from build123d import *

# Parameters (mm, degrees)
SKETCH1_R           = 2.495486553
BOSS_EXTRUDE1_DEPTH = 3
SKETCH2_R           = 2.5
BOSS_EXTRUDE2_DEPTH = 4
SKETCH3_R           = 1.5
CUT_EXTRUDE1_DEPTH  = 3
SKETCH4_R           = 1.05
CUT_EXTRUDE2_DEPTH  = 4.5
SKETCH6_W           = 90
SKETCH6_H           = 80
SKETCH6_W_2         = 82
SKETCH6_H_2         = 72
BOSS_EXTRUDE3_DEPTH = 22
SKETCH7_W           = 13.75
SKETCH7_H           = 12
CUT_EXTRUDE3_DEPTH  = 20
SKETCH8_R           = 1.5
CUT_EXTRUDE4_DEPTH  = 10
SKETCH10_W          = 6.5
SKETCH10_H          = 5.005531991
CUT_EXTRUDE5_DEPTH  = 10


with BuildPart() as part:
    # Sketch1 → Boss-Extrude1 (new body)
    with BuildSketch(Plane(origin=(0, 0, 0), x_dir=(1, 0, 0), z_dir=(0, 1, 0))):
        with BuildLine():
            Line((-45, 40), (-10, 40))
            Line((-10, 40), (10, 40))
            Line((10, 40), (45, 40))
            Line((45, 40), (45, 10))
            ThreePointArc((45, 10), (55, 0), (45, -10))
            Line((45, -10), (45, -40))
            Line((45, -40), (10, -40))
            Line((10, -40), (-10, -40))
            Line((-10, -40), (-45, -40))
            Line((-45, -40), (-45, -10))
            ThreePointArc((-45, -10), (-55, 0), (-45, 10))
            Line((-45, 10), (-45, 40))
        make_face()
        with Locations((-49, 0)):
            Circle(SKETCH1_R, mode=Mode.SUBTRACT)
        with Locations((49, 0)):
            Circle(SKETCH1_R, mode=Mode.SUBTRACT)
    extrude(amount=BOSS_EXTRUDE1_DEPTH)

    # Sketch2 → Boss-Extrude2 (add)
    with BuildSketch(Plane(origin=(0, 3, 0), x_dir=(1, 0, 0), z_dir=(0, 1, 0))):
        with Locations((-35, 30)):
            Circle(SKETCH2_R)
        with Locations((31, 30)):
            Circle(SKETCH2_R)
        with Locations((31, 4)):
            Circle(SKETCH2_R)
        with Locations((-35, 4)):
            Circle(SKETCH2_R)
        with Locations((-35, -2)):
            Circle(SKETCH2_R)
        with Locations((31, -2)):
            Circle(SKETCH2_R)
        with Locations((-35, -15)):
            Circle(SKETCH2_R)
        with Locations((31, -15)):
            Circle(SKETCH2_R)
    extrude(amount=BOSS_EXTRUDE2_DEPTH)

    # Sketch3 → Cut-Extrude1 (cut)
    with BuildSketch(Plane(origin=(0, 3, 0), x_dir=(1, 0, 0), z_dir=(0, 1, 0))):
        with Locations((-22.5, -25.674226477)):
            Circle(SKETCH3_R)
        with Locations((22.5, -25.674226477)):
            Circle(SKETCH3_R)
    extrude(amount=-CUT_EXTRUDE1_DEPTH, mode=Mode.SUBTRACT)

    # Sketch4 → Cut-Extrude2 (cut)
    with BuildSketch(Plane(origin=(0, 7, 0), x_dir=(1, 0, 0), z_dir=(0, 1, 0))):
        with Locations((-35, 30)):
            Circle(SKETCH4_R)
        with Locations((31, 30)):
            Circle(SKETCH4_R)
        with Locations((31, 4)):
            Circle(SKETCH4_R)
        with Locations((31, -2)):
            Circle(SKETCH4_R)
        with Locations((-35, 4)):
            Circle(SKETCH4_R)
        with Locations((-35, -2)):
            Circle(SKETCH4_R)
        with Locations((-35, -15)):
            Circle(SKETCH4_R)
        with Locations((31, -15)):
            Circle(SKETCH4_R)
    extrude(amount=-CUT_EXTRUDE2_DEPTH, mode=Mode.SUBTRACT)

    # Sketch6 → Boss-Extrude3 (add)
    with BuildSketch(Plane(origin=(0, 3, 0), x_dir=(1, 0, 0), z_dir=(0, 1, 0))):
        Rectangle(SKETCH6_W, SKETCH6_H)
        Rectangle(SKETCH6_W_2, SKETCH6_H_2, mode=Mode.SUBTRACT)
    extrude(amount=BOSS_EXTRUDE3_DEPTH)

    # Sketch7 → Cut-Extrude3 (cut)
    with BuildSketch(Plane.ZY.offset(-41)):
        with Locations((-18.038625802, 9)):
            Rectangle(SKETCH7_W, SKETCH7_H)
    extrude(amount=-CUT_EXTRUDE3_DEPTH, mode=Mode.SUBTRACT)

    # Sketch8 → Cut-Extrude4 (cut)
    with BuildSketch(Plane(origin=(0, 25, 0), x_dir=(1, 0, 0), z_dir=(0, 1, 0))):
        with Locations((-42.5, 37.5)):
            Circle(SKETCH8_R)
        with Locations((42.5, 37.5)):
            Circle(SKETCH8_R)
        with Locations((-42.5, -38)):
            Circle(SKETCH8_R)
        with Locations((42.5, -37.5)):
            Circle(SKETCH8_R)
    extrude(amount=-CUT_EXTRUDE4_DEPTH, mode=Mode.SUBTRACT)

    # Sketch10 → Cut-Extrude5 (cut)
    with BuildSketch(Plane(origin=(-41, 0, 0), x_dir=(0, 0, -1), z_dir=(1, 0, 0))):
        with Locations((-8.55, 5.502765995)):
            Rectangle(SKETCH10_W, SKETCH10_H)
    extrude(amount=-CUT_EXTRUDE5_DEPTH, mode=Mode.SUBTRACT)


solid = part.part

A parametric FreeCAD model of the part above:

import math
import FreeCAD as App
import Part
import Sketcher

V = App.Vector
Q = App.Units.Quantity

doc = App.newDocument("Part")
body = doc.addObject("PartDesign::Body", "Body")

sketch1 = doc.addObject("Sketcher::SketchObject", "Sketch")
body.addObject(sketch1)
sketch1.AttachmentSupport = (doc.XZ_Plane, [""])
sketch1.MapMode = "FlatFace"
sketch1.addGeometry([
    Part.LineSegment(V(45, -40, 0), V(-45, -40, 0)),
    Part.LineSegment(V(-45, -40, 0), V(-45, -10, 0)),
    Part.ArcOfCircle(Part.Circle(V(-45, 0, 0), V(0, 0, 1), 10), math.radians(90), math.radians(270)),
    Part.LineSegment(V(-45, 10, 0), V(-45, 40, 0)),
    Part.LineSegment(V(-45, 40, 0), V(45, 40, 0)),
    Part.LineSegment(V(45, 40, 0), V(45, 10, 0)),
    Part.ArcOfCircle(Part.Circle(V(45, 0, 0), V(0, 0, 1), 10), math.radians(-90), math.radians(90)),
    Part.LineSegment(V(45, -10, 0), V(45, -40, 0)),
    Part.Circle(V(49, 0, 0), V(0, 0, 1), 2.5),
    Part.Circle(V(-49, 0, 0), V(0, 0, 1), 2.5),
], False)
sketch1.addConstraint([
    Sketcher.Constraint("Coincident", 0, 2, 1, 1),
    Sketcher.Constraint("Coincident", 1, 2, 2, 2),
    Sketcher.Constraint("Coincident", 2, 1, 3, 1),
    Sketcher.Constraint("Coincident", 3, 2, 4, 1),
    Sketcher.Constraint("Coincident", 4, 2, 5, 1),
    Sketcher.Constraint("Coincident", 5, 2, 6, 2),
    Sketcher.Constraint("Coincident", 6, 1, 7, 1),
    Sketcher.Constraint("Coincident", 7, 2, 0, 1),
    Sketcher.Constraint("Horizontal", 0),
    Sketcher.Constraint("Vertical", 1),
    Sketcher.Constraint("Vertical", 3),
    Sketcher.Constraint("Horizontal", 4),
    Sketcher.Constraint("Vertical", 5),
    Sketcher.Constraint("Vertical", 7),
    Sketcher.Constraint("Equal", 2, 6),
    Sketcher.Constraint("Equal", 8, 9),
    Sketcher.Constraint("Symmetric", 2, 3, 6, 3, -1, 1),
    Sketcher.Constraint("Symmetric", 8, 3, 9, 3, -1, 1),
    Sketcher.Constraint("Symmetric", 0, 2, 4, 2, -1, 1),
    Sketcher.Constraint("Symmetric", 2, 1, 5, 2, -2),
    Sketcher.Constraint("PointOnObject", 8, 3, -1),
    Sketcher.Constraint("Vertical", 2, 3, 0, 2),
    Sketcher.Constraint("Vertical", 5, 2, 6, 1),
    Sketcher.Constraint("Radius", 2, Q("10 mm")),
    Sketcher.Constraint("DistanceX", 0, 2, 0, 1, Q("90 mm")),
    Sketcher.Constraint("DistanceY", 1, 1, 1, 2, Q("30 mm")),
    Sketcher.Constraint("DistanceX", -1, 1, 8, 3, Q("49 mm")),
    Sketcher.Constraint("Diameter", 8, Q("4.990973 mm")),
])
pad1 = doc.addObject("PartDesign::Pad", "Pad")
body.addObject(pad1)
pad1.Profile = sketch1
pad1.Length = 3
pad1.Reversed = True

sketch2 = doc.addObject("Sketcher::SketchObject", "Sketch001")
body.addObject(sketch2)
sketch2.AttachmentSupport = (doc.XZ_Plane, [""])
sketch2.MapMode = "FlatFace"
sketch2.AttachmentOffset = App.Placement(V(0, 0, -3), App.Rotation())
sketch2.addGeometry([
    Part.Circle(V(-35, -30, 0), V(0, 0, 1), 2.5),
    Part.Circle(V(31, -30, 0), V(0, 0, 1), 2.5),
    Part.Circle(V(31, -4, 0), V(0, 0, 1), 2.5),
    Part.Circle(V(-35, -4, 0), V(0, 0, 1), 2.5),
    Part.Circle(V(-35, 2, 0), V(0, 0, 1), 2.5),
    Part.Circle(V(31, 2, 0), V(0, 0, 1), 2.5),
    Part.Circle(V(-35, 15, 0), V(0, 0, 1), 2.5),
    Part.Circle(V(31, 15, 0), V(0, 0, 1), 2.5),
], False)
sketch2.addConstraint([
    Sketcher.Constraint("Equal", 0, 1),
    Sketcher.Constraint("Equal", 1, 2),
    Sketcher.Constraint("Equal", 2, 3),
    Sketcher.Constraint("Equal", 3, 4),
    Sketcher.Constraint("Equal", 4, 5),
    Sketcher.Constraint("Equal", 5, 6),
    Sketcher.Constraint("Equal", 6, 7),
    Sketcher.Constraint("Horizontal", 0, 3, 1, 3),
    Sketcher.Constraint("Horizontal", 2, 3, 3, 3),
    Sketcher.Constraint("Horizontal", 4, 3, 5, 3),
    Sketcher.Constraint("Horizontal", 6, 3, 7, 3),
    Sketcher.Constraint("Vertical", 1, 3, 2, 3),
    Sketcher.Constraint("Vertical", 0, 3, 3, 3),
    Sketcher.Constraint("Vertical", 3, 3, 4, 3),
    Sketcher.Constraint("Vertical", 2, 3, 5, 3),
    Sketcher.Constraint("Vertical", 4, 3, 6, 3),
    Sketcher.Constraint("Vertical", 5, 3, 7, 3),
    Sketcher.Constraint("Diameter", 0, Q("5 mm")),
    Sketcher.Constraint("DistanceX", 0, 3, -1, 1, Q("35 mm")),
    Sketcher.Constraint("DistanceY", 0, 3, -1, 1, Q("30 mm")),
    Sketcher.Constraint("DistanceX", -1, 1, 1, 3, Q("31 mm")),
    Sketcher.Constraint("DistanceY", 2, 3, -1, 1, Q("4 mm")),
    Sketcher.Constraint("DistanceY", -1, 1, 4, 3, Q("2 mm")),
    Sketcher.Constraint("DistanceY", -1, 1, 6, 3, Q("15 mm")),
])
pad2 = doc.addObject("PartDesign::Pad", "Pad001")
body.addObject(pad2)
pad2.Profile = sketch2
pad2.Length = 4
pad2.Reversed = True

sketch3 = doc.addObject("Sketcher::SketchObject", "Sketch002")
body.addObject(sketch3)
sketch3.AttachmentSupport = (doc.XZ_Plane, [""])
sketch3.MapMode = "FlatFace"
sketch3.AttachmentOffset = App.Placement(V(0, 0, -3), App.Rotation())
sketch3.addGeometry([
    Part.Circle(V(-22.5, 25.7, 0), V(0, 0, 1), 1.5),
    Part.Circle(V(22.5, 25.7, 0), V(0, 0, 1), 1.5),
], False)
sketch3.addConstraint([
    Sketcher.Constraint("Equal", 0, 1),
    Sketcher.Constraint("Symmetric", 0, 3, 1, 3, -2),
    Sketcher.Constraint("Diameter", 0, Q("3 mm")),
    Sketcher.Constraint("DistanceX", 0, 3, 1, 3, Q("45 mm")),
    Sketcher.Constraint("DistanceY", -1, 1, 0, 3, Q("25.674226 mm")),
])
pocket1 = doc.addObject("PartDesign::Pocket", "Pocket")
body.addObject(pocket1)
pocket1.Profile = sketch3
pocket1.Length = 3
pocket1.Reversed = True

sketch4 = doc.addObject("Sketcher::SketchObject", "Sketch003")
body.addObject(sketch4)
sketch4.AttachmentSupport = (doc.XZ_Plane, [""])
sketch4.MapMode = "FlatFace"
sketch4.AttachmentOffset = App.Placement(V(0, 0, -7), App.Rotation())
sketch4.addGeometry([
    Part.Circle(V(-35, -30, 0), V(0, 0, 1), 1.1),
    Part.Circle(V(31, -30, 0), V(0, 0, 1), 1.1),
    Part.Circle(V(31, -4, 0), V(0, 0, 1), 1.1),
    Part.Circle(V(31, 2, 0), V(0, 0, 1), 1.1),
    Part.Circle(V(-35, -4, 0), V(0, 0, 1), 1.1),
    Part.Circle(V(-35, 2, 0), V(0, 0, 1), 1.1),
    Part.Circle(V(-35, 15, 0), V(0, 0, 1), 1.1),
    Part.Circle(V(31, 15, 0), V(0, 0, 1), 1.1),
], False)
sketch4.addConstraint([
    Sketcher.Constraint("Equal", 0, 1),
    Sketcher.Constraint("Equal", 1, 2),
    Sketcher.Constraint("Equal", 2, 3),
    Sketcher.Constraint("Equal", 3, 4),
    Sketcher.Constraint("Equal", 4, 5),
    Sketcher.Constraint("Equal", 5, 6),
    Sketcher.Constraint("Equal", 6, 7),
    Sketcher.Constraint("Horizontal", 0, 3, 1, 3),
    Sketcher.Constraint("Horizontal", 2, 3, 4, 3),
    Sketcher.Constraint("Horizontal", 3, 3, 5, 3),
    Sketcher.Constraint("Horizontal", 6, 3, 7, 3),
    Sketcher.Constraint("Vertical", 1, 3, 2, 3),
    Sketcher.Constraint("Vertical", 2, 3, 3, 3),
    Sketcher.Constraint("Vertical", 0, 3, 4, 3),
    Sketcher.Constraint("Vertical", 4, 3, 5, 3),
    Sketcher.Constraint("Vertical", 5, 3, 6, 3),
    Sketcher.Constraint("Vertical", 3, 3, 7, 3),
    Sketcher.Constraint("Diameter", 0, Q("2.1 mm")),
    Sketcher.Constraint("DistanceX", 0, 3, -1, 1, Q("35 mm")),
    Sketcher.Constraint("DistanceY", 0, 3, -1, 1, Q("30 mm")),
    Sketcher.Constraint("DistanceX", -1, 1, 1, 3, Q("31 mm")),
    Sketcher.Constraint("DistanceY", 2, 3, -1, 1, Q("4 mm")),
    Sketcher.Constraint("DistanceY", -1, 1, 3, 3, Q("2 mm")),
    Sketcher.Constraint("DistanceY", -1, 1, 6, 3, Q("15 mm")),
])
pocket2 = doc.addObject("PartDesign::Pocket", "Pocket001")
body.addObject(pocket2)
pocket2.Profile = sketch4
pocket2.Length = 4.5
pocket2.Reversed = True

sketch5 = doc.addObject("Sketcher::SketchObject", "Sketch004")
body.addObject(sketch5)
sketch5.AttachmentSupport = (doc.XZ_Plane, [""])
sketch5.MapMode = "FlatFace"
sketch5.AttachmentOffset = App.Placement(V(0, 0, -3), App.Rotation())
sketch5.addGeometry([
    Part.LineSegment(V(-45, -40, 0), V(-45, 40, 0)),
    Part.LineSegment(V(-45, 40, 0), V(45, 40, 0)),
    Part.LineSegment(V(45, 40, 0), V(45, -40, 0)),
    Part.LineSegment(V(45, -40, 0), V(-45, -40, 0)),
    Part.LineSegment(V(41, 36, 0), V(-41, 36, 0)),
    Part.LineSegment(V(-41, 36, 0), V(-41, -36, 0)),
    Part.LineSegment(V(-41, -36, 0), V(41, -36, 0)),
    Part.LineSegment(V(41, -36, 0), V(41, 36, 0)),
], False)
sketch5.addConstraint([
    Sketcher.Constraint("Coincident", 0, 2, 1, 1),
    Sketcher.Constraint("Coincident", 1, 2, 2, 1),
    Sketcher.Constraint("Coincident", 2, 2, 3, 1),
    Sketcher.Constraint("Coincident", 3, 2, 0, 1),
    Sketcher.Constraint("Coincident", 4, 2, 5, 1),
    Sketcher.Constraint("Coincident", 5, 2, 6, 1),
    Sketcher.Constraint("Coincident", 6, 2, 7, 1),
    Sketcher.Constraint("Coincident", 7, 2, 4, 1),
    Sketcher.Constraint("Vertical", 0),
    Sketcher.Constraint("Horizontal", 1),
    Sketcher.Constraint("Vertical", 2),
    Sketcher.Constraint("Horizontal", 3),
    Sketcher.Constraint("Horizontal", 4),
    Sketcher.Constraint("Vertical", 5),
    Sketcher.Constraint("Horizontal", 6),
    Sketcher.Constraint("Vertical", 7),
    Sketcher.Constraint("Symmetric", 0, 2, 2, 2, -1, 1),
    Sketcher.Constraint("Symmetric", 4, 2, 6, 2, -1, 1),
    Sketcher.Constraint("DistanceX", 1, 1, 1, 2, Q("90 mm")),
    Sketcher.Constraint("DistanceX", 4, 2, 4, 1, Q("82 mm")),
    Sketcher.Constraint("DistanceY", 0, 1, 0, 2, Q("80 mm")),
    Sketcher.Constraint("DistanceY", 5, 2, 5, 1, Q("72 mm")),
])
pad3 = doc.addObject("PartDesign::Pad", "Pad002")
body.addObject(pad3)
pad3.Profile = sketch5
pad3.Length = 22
pad3.Reversed = True

sketch6 = doc.addObject("Sketcher::SketchObject", "Sketch005")
body.addObject(sketch6)
sketch6.AttachmentSupport = (doc.YZ_Plane, [""])
sketch6.MapMode = "FlatFace"
sketch6.AttachmentOffset = App.Placement(V(0, 0, 41), App.Rotation())
sketch6.addGeometry([
    Part.LineSegment(V(15, -25, 0), V(3, -25, 0)),
    Part.LineSegment(V(3, -25, 0), V(3, -11, 0)),
    Part.LineSegment(V(3, -11, 0), V(15, -11, 0)),
    Part.LineSegment(V(15, -11, 0), V(15, -25, 0)),
], False)
sketch6.addConstraint([
    Sketcher.Constraint("Coincident", 0, 2, 1, 1),
    Sketcher.Constraint("Coincident", 1, 2, 2, 1),
    Sketcher.Constraint("Coincident", 2, 2, 3, 1),
    Sketcher.Constraint("Coincident", 3, 2, 0, 1),
    Sketcher.Constraint("Horizontal", 0),
    Sketcher.Constraint("Vertical", 1),
    Sketcher.Constraint("Horizontal", 2),
    Sketcher.Constraint("Vertical", 3),
    Sketcher.Constraint("DistanceX", 0, 2, 0, 1, Q("12 mm")),
    Sketcher.Constraint("DistanceX", -1, 1, 0, 2, Q("3 mm")),
    Sketcher.Constraint("DistanceY", 1, 1, 1, 2, Q("13.75 mm")),
    Sketcher.Constraint("DistanceY", 0, 2, -1, 1, Q("24.913626 mm")),
])
pocket3 = doc.addObject("PartDesign::Pocket", "Pocket002")
body.addObject(pocket3)
pocket3.Profile = sketch6
pocket3.Length = 20
pocket3.Reversed = True

sketch7 = doc.addObject("Sketcher::SketchObject", "Sketch006")
body.addObject(sketch7)
sketch7.AttachmentSupport = (doc.XZ_Plane, [""])
sketch7.MapMode = "FlatFace"
sketch7.AttachmentOffset = App.Placement(V(0, 0, -25), App.Rotation())
sketch7.addGeometry([
    Part.Circle(V(-42.5, -37.5, 0), V(0, 0, 1), 1.5),
    Part.Circle(V(42.5, -37.5, 0), V(0, 0, 1), 1.5),
    Part.Circle(V(-42.5, 38, 0), V(0, 0, 1), 1.5),
    Part.Circle(V(42.5, 37.5, 0), V(0, 0, 1), 1.5),
], False)
sketch7.addConstraint([
    Sketcher.Constraint("Equal", 0, 1),
    Sketcher.Constraint("Equal", 1, 2),
    Sketcher.Constraint("Equal", 2, 3),
    Sketcher.Constraint("Symmetric", 0, 3, 3, 3, -1, 1),
    Sketcher.Constraint("Symmetric", 0, 3, 1, 3, -2),
    Sketcher.Constraint("Vertical", 0, 3, 2, 3),
    Sketcher.Constraint("Diameter", 0, Q("3 mm")),
    Sketcher.Constraint("DistanceY", -1, 1, 2, 3, Q("38 mm")),
    Sketcher.Constraint("DistanceX", 0, 3, 1, 3, Q("85 mm")),
    Sketcher.Constraint("DistanceY", 1, 3, 3, 3, Q("75 mm")),
])
pocket4 = doc.addObject("PartDesign::Pocket", "Pocket003")
body.addObject(pocket4)
pocket4.Profile = sketch7
pocket4.Length = 10
pocket4.Reversed = True

sketch8 = doc.addObject("Sketcher::SketchObject", "Sketch007")
body.addObject(sketch8)
sketch8.AttachmentSupport = (doc.YZ_Plane, [""])
sketch8.MapMode = "FlatFace"
sketch8.AttachmentOffset = App.Placement(V(0, 0, -41), App.Rotation())
sketch8.addGeometry([
    Part.LineSegment(V(8, 12, 0), V(3, 12, 0)),
    Part.LineSegment(V(3, 12, 0), V(3, 5, 0)),
    Part.LineSegment(V(3, 5, 0), V(8, 5, 0)),
    Part.LineSegment(V(8, 5, 0), V(8, 12, 0)),
], False)
sketch8.addConstraint([
    Sketcher.Constraint("Coincident", 0, 2, 1, 1),
    Sketcher.Constraint("Coincident", 1, 2, 2, 1),
    Sketcher.Constraint("Coincident", 2, 2, 3, 1),
    Sketcher.Constraint("Coincident", 3, 2, 0, 1),
    Sketcher.Constraint("Horizontal", 0),
    Sketcher.Constraint("Vertical", 1),
    Sketcher.Constraint("Horizontal", 2),
    Sketcher.Constraint("Vertical", 3),
    Sketcher.Constraint("DistanceY", 1, 2, 1, 1, Q("6.5 mm")),
    Sketcher.Constraint("DistanceX", -1, 1, 0, 2, Q("3 mm")),
    Sketcher.Constraint("DistanceY", -1, 1, 0, 2, Q("11.8 mm")),
    Sketcher.Constraint("DistanceX", 0, 2, 0, 1, Q("5.005532 mm")),
])
pocket5 = doc.addObject("PartDesign::Pocket", "Pocket004")
body.addObject(pocket5)
pocket5.Profile = sketch8
pocket5.Length = 10

doc.recompute()
